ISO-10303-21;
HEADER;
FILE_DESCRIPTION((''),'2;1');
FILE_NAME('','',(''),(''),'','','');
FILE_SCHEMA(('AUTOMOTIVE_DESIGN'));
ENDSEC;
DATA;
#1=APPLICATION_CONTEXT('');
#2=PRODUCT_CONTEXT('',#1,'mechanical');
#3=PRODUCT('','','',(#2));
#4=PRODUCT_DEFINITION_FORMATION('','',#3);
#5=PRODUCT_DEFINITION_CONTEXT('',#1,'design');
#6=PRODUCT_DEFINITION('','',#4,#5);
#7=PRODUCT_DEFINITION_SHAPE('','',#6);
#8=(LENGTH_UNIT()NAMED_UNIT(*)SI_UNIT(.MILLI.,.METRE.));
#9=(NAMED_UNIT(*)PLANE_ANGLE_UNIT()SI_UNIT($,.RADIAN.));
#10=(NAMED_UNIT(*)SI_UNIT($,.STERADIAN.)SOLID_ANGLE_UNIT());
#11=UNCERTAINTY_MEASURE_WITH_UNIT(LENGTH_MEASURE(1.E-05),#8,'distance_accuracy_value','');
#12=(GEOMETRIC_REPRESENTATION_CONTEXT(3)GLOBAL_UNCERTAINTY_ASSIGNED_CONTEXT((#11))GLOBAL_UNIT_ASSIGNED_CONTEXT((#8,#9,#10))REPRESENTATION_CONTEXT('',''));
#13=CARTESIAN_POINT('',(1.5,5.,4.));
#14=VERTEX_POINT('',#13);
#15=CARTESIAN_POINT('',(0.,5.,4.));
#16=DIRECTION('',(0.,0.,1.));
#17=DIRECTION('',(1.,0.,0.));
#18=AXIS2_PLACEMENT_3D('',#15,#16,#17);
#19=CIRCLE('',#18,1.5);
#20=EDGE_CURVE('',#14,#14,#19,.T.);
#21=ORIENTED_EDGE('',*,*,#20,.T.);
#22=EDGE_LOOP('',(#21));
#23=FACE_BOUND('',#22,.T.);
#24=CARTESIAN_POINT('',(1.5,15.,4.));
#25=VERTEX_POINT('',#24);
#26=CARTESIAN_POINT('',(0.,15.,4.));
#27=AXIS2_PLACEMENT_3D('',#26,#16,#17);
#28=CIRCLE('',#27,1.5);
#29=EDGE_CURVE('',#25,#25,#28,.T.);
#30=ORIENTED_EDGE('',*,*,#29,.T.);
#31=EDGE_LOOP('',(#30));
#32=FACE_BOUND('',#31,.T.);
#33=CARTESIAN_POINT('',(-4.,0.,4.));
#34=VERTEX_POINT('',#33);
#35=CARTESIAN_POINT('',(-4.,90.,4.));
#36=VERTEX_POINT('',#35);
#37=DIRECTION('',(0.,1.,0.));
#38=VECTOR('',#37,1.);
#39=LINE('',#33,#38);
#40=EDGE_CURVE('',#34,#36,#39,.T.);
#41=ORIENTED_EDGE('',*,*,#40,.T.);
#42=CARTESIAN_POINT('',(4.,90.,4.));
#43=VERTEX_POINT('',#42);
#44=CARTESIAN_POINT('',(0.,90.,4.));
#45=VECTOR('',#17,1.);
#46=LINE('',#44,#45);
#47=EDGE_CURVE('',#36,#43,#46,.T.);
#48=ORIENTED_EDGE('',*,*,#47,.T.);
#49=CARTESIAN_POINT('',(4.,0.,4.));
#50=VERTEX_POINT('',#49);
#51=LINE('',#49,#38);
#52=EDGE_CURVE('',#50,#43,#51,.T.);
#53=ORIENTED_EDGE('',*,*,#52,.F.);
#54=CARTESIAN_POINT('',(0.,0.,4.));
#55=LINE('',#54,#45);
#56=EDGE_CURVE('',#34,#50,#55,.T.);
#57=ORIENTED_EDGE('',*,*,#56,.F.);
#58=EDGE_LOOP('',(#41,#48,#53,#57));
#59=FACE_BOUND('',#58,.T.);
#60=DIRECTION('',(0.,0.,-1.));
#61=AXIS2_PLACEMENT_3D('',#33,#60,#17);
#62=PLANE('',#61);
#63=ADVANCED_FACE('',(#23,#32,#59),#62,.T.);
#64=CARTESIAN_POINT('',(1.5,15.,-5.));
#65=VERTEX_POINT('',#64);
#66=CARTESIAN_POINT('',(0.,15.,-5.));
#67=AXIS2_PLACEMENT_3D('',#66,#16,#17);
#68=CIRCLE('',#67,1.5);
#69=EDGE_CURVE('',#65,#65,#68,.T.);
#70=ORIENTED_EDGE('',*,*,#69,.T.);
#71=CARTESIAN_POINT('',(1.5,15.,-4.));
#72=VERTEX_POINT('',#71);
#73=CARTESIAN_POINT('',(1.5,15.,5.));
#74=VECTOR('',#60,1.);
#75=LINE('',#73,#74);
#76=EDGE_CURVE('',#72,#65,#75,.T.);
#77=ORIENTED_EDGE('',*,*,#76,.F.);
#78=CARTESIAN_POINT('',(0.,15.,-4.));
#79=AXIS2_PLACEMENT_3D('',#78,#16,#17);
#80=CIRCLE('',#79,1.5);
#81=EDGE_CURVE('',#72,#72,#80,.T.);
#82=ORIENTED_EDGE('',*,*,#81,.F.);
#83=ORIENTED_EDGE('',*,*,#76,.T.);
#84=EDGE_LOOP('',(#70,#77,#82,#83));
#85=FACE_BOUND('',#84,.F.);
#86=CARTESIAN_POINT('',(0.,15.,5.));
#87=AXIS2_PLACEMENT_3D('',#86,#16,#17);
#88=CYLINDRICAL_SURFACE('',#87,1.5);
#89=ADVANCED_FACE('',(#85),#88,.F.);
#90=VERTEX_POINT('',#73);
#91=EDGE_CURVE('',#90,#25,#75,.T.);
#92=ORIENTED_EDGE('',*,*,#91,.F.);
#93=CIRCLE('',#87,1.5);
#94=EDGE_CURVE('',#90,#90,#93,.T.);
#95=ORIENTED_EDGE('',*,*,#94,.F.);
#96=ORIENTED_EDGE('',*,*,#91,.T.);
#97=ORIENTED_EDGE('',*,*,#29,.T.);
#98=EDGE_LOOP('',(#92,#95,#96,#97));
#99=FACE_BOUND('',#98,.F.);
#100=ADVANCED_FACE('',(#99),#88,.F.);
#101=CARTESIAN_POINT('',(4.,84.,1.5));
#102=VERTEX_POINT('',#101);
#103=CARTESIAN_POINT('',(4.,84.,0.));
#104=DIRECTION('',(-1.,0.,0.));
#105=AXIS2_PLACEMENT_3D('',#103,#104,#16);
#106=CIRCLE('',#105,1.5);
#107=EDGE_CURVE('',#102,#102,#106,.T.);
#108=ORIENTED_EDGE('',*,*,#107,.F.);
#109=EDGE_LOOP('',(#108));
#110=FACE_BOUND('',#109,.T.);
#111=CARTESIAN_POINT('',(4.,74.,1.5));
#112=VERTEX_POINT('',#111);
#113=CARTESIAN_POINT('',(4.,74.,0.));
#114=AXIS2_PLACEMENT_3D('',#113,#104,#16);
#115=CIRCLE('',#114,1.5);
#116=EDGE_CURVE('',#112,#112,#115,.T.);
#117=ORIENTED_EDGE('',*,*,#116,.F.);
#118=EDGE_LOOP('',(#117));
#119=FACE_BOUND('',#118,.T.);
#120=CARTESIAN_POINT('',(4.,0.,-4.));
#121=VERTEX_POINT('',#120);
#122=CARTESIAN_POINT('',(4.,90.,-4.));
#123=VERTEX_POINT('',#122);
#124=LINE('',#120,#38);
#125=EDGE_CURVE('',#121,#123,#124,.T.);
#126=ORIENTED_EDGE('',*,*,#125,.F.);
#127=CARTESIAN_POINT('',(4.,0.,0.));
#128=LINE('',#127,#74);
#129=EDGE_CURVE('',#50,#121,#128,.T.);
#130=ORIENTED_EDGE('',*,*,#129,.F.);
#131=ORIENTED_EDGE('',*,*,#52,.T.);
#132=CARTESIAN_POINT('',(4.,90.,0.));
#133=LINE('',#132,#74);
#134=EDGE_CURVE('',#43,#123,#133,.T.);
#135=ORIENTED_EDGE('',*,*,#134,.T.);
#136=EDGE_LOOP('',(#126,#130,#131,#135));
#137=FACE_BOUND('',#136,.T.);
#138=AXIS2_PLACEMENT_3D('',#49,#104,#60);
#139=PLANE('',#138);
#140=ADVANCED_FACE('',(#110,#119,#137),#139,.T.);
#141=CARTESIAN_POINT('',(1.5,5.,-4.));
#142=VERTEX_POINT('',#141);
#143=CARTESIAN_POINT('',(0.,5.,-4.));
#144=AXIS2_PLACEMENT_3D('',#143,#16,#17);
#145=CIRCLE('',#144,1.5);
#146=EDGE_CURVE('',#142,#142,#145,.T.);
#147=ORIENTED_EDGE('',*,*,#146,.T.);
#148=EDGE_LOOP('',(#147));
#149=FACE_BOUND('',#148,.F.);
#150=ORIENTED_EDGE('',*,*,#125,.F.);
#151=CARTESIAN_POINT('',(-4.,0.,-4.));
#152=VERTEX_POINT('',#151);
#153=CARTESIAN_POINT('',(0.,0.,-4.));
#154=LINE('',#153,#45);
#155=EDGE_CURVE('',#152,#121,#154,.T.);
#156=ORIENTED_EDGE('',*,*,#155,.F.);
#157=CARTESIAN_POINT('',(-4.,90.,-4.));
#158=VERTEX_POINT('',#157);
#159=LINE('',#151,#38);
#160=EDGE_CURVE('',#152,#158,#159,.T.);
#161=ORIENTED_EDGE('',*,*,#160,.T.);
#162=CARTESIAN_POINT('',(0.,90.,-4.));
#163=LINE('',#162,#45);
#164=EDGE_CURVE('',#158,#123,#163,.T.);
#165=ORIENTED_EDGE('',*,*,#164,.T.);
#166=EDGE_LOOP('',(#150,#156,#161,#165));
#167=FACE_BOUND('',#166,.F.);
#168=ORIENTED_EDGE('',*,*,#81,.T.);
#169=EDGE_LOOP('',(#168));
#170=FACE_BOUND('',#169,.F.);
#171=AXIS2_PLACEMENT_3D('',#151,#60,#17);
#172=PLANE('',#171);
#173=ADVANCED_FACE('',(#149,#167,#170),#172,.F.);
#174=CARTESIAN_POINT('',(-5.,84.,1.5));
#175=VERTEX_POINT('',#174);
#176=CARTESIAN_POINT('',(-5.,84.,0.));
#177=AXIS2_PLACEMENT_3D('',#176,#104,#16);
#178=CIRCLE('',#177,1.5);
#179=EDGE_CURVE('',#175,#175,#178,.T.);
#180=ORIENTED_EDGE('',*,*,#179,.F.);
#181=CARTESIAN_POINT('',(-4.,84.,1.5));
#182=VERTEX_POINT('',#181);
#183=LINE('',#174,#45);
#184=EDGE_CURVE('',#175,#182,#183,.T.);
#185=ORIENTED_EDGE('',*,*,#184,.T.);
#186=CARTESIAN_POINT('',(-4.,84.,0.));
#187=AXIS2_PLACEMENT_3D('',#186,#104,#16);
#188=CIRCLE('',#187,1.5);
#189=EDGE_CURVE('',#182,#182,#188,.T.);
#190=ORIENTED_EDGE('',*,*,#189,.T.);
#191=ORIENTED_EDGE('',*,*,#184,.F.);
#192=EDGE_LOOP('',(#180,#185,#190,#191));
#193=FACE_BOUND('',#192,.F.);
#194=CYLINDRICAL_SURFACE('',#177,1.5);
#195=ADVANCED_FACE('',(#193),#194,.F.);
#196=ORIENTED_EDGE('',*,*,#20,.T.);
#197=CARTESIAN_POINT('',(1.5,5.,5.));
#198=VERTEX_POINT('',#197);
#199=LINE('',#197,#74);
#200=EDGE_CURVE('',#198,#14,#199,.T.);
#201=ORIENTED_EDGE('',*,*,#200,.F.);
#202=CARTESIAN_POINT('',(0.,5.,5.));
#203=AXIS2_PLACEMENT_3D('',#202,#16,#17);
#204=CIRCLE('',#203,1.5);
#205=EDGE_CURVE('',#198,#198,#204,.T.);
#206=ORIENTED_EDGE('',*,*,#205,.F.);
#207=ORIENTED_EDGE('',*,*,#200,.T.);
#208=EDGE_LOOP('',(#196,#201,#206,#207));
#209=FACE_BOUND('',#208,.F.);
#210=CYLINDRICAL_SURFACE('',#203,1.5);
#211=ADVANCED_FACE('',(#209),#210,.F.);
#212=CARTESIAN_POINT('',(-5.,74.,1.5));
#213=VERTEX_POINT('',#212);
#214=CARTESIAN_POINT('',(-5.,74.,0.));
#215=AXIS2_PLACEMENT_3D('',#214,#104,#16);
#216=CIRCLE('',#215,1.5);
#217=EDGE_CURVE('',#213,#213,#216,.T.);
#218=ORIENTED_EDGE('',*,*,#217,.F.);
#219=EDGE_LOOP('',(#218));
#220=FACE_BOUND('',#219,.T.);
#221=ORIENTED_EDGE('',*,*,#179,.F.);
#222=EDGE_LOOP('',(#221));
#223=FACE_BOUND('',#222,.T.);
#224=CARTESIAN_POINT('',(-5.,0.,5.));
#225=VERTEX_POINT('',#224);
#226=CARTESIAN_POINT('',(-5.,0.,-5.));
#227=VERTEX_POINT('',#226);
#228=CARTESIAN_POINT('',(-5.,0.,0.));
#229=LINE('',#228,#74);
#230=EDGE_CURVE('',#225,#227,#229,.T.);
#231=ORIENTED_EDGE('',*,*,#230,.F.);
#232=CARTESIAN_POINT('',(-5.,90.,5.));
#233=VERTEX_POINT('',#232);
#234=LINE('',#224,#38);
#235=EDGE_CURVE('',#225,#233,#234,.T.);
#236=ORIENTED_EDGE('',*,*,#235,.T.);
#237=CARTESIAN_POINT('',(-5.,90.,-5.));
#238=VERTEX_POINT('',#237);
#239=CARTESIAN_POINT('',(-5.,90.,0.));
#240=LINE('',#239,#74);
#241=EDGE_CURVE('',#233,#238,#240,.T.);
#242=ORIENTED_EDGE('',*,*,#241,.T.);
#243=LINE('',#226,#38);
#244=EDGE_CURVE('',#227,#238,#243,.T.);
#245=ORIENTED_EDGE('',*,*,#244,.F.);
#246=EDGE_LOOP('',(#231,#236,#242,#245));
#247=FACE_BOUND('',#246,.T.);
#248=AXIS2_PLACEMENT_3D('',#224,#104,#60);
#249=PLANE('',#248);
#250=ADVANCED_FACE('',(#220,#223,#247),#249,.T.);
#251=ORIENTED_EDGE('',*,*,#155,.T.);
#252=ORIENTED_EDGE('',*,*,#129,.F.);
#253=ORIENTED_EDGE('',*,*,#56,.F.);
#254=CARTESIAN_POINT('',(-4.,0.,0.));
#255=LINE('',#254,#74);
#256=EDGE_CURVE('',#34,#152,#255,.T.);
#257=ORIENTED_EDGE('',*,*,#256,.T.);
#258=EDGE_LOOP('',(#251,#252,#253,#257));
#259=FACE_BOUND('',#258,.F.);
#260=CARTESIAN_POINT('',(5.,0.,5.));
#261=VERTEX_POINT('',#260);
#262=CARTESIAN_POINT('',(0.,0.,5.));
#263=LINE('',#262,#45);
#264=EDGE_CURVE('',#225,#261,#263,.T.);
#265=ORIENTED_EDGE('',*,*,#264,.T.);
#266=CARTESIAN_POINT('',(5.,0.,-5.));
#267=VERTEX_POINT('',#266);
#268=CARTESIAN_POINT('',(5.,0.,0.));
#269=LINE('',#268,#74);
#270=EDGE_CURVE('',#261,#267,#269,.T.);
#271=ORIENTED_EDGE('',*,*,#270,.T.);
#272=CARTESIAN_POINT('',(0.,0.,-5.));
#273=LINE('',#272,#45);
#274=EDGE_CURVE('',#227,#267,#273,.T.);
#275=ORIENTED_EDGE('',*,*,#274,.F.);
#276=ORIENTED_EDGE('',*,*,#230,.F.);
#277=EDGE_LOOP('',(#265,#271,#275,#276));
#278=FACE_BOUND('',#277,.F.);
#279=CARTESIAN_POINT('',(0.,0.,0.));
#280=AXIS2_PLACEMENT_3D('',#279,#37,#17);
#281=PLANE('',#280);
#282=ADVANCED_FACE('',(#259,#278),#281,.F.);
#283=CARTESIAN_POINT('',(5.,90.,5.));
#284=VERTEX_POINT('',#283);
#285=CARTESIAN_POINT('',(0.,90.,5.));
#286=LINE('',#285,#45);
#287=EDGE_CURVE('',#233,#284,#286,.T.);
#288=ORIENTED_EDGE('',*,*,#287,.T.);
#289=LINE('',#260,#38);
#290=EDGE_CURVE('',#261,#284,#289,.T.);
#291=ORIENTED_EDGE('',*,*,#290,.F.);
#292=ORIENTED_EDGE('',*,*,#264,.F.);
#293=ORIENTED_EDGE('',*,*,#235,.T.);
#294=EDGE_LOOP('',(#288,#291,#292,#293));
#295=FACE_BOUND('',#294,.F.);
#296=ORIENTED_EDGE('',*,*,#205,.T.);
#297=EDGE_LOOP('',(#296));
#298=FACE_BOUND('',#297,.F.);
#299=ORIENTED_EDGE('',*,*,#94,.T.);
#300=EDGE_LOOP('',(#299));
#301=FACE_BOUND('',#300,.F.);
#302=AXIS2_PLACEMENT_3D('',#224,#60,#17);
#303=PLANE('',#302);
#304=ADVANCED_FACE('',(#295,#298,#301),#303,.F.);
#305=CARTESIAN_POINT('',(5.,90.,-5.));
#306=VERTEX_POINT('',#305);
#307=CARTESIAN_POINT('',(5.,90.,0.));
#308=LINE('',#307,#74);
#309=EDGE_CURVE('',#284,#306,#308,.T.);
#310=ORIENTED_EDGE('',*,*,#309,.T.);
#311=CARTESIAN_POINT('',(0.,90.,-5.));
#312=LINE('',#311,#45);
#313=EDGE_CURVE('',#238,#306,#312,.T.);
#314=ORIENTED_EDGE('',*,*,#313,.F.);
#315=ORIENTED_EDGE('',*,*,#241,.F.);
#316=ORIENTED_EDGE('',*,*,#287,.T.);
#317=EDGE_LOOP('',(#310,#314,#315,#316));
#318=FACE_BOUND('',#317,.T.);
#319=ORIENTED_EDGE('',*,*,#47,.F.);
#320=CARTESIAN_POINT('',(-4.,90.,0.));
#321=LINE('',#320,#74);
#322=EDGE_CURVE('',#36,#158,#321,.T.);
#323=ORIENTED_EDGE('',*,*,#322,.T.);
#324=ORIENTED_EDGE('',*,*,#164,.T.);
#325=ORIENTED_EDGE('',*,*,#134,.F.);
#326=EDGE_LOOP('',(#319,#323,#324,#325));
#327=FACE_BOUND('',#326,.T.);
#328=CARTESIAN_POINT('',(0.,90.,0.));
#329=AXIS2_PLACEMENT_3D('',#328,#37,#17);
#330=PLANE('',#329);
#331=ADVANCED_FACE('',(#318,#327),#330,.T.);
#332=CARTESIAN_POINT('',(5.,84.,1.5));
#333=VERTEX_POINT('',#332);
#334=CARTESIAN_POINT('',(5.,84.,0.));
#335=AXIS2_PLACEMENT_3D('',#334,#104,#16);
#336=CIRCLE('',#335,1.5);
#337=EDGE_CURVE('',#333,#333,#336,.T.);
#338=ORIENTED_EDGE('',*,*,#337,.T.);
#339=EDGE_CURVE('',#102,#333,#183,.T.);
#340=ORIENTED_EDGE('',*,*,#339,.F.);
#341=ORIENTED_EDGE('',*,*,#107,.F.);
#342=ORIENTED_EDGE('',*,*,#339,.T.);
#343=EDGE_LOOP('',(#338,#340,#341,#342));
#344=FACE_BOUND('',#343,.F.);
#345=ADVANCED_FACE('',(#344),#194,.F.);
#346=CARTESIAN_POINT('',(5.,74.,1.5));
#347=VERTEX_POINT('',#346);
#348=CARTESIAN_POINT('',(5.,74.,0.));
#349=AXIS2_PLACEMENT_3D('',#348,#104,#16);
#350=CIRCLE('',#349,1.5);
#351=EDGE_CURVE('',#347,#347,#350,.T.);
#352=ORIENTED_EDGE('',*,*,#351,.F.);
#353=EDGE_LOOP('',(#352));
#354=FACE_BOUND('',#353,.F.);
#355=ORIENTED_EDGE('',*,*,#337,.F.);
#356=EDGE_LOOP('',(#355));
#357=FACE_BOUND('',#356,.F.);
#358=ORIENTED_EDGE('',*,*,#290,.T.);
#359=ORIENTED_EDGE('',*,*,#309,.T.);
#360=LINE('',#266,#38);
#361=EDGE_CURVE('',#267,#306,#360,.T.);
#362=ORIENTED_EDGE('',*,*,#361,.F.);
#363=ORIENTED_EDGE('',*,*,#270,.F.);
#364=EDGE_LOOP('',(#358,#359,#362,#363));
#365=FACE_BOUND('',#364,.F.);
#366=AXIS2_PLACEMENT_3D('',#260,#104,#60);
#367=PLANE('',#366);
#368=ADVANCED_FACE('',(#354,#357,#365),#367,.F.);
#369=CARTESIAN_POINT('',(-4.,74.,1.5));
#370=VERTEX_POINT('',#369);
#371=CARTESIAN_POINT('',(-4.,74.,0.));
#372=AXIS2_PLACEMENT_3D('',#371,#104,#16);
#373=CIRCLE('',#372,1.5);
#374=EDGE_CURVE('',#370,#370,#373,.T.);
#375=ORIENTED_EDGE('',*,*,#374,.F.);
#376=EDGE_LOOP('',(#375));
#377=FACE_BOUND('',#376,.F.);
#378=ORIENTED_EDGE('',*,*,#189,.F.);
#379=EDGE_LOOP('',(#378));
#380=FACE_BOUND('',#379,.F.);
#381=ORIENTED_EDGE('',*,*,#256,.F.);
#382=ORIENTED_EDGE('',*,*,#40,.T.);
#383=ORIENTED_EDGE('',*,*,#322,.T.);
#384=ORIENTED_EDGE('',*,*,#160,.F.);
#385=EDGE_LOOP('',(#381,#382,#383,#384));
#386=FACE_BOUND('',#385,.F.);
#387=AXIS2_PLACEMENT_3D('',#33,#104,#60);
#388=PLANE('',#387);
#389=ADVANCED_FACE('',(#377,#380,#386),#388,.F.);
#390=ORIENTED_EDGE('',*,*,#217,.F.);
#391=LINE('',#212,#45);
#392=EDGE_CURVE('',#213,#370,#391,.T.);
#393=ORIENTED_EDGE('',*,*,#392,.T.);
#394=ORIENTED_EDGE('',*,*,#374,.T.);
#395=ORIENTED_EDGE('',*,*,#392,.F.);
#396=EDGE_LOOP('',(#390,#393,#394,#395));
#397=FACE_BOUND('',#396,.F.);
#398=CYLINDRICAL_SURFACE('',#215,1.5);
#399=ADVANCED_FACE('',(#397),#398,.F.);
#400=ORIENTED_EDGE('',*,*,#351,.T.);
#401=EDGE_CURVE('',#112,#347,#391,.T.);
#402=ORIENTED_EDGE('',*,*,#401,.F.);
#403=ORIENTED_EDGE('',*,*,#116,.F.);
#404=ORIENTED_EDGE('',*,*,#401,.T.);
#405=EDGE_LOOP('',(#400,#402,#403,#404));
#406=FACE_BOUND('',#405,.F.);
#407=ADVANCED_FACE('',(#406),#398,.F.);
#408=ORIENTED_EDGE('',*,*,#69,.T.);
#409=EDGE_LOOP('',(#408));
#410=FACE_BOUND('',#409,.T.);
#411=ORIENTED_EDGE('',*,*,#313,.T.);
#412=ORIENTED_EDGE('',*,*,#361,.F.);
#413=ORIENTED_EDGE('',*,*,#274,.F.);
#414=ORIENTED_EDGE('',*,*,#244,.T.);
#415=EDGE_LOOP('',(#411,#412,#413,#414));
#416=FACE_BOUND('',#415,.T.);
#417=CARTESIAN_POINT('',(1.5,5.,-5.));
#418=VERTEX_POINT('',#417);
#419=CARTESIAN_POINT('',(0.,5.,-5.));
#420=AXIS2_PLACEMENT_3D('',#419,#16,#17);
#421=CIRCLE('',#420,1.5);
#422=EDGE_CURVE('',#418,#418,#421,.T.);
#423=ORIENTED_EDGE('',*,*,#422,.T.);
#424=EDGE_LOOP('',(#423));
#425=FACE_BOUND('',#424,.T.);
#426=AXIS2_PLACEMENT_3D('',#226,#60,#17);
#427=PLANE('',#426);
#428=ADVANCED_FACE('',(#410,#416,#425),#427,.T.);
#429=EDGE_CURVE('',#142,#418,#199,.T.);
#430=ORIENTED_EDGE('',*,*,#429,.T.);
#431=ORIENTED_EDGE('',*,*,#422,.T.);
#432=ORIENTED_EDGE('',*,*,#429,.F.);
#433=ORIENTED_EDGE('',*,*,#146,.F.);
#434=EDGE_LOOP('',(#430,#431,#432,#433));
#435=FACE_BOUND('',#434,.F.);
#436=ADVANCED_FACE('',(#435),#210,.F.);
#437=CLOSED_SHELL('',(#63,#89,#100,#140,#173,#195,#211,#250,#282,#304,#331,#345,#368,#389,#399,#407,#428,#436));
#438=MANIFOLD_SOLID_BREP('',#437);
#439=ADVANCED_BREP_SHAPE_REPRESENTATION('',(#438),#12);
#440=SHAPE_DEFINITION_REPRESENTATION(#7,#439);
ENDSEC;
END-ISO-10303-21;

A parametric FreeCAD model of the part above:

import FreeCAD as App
import Part
import Sketcher
from FreeCAD import Vector

doc = App.newDocument("Part")
body = doc.addObject("PartDesign::Body", "Body")

# Sketch on XZ plane
sketch1 = body.newObject("Sketcher::SketchObject", "Sketch")
sketch1.AttachmentSupport = (doc.getObject("XZ_Plane"), [""])
sketch1.MapMode = "FlatFace"
sketch1.addGeometry(Part.LineSegment(Vector(-5, -5, 0), Vector(-5, 5, 0)), False)
sketch1.addGeometry(Part.LineSegment(Vector(-5, 5, 0), Vector(5, 5, 0)), False)
sketch1.addGeometry(Part.LineSegment(Vector(5, 5, 0), Vector(5, -5, 0)), False)
sketch1.addGeometry(Part.LineSegment(Vector(5, -5, 0), Vector(-5, -5, 0)), False)
sketch1.addGeometry(Part.LineSegment(Vector(4, 4, 0), Vector(-4, 4, 0)), False)
sketch1.addGeometry(Part.LineSegment(Vector(-4, 4, 0), Vector(-4, -4, 0)), False)
sketch1.addGeometry(Part.LineSegment(Vector(-4, -4, 0), Vector(4, -4, 0)), False)
sketch1.addGeometry(Part.LineSegment(Vector(4, -4, 0), Vector(4, 4, 0)), False)
sketch1.addConstraint(Sketcher.Constraint("Coincident", 0, 2, 1, 1))
sketch1.addConstraint(Sketcher.Constraint("Coincident", 1, 2, 2, 1))
sketch1.addConstraint(Sketcher.Constraint("Coincident", 2, 2, 3, 1))
sketch1.addConstraint(Sketcher.Constraint("Coincident", 3, 2, 0, 1))
sketch1.addConstraint(Sketcher.Constraint("Coincident", 4, 2, 5, 1))
sketch1.addConstraint(Sketcher.Constraint("Coincident", 5, 2, 6, 1))
sketch1.addConstraint(Sketcher.Constraint("Coincident", 6, 2, 7, 1))
sketch1.addConstraint(Sketcher.Constraint("Coincident", 7, 2, 4, 1))
sketch1.addConstraint(Sketcher.Constraint("Vertical", 0))
sketch1.addConstraint(Sketcher.Constraint("Horizontal", 1))
sketch1.addConstraint(Sketcher.Constraint("Vertical", 2))
sketch1.addConstraint(Sketcher.Constraint("Horizontal", 3))
sketch1.addConstraint(Sketcher.Constraint("Horizontal", 4))
sketch1.addConstraint(Sketcher.Constraint("Vertical", 5))
sketch1.addConstraint(Sketcher.Constraint("Horizontal", 6))
sketch1.addConstraint(Sketcher.Constraint("Vertical", 7))
sketch1.addConstraint(Sketcher.Constraint("Symmetric", 0, 2, 2, 2, -1, 1))
sketch1.addConstraint(Sketcher.Constraint("Symmetric", 4, 2, 6, 2, -1, 1))
sketch1.addConstraint(Sketcher.Constraint("Equal", 3, 0))
sketch1.addConstraint(Sketcher.Constraint("Equal", 6, 5))
sketch1.addConstraint(Sketcher.Constraint("DistanceX", 1, 1, 1, 2, 10.0))
sketch1.addConstraint(Sketcher.Constraint("DistanceX", 4, 2, 4, 1, 8.0))
pad1 = body.newObject("PartDesign::Pad", "Pad")
pad1.Profile = sketch1
pad1.Length = 90
pad1.Reversed = True

# Sketch on YZ plane
sketch2 = body.newObject("Sketcher::SketchObject", "Sketch001")
sketch2.AttachmentSupport = (doc.getObject("YZ_Plane"), [""])
sketch2.MapMode = "FlatFace"
sketch2.AttachmentOffset = App.Placement(Vector(0, 0, -5), App.Rotation())
sketch2.addGeometry(Part.Circle(Vector(84, 0, 0), Vector(0, 0, 1), 1.5), False)
sketch2.addGeometry(Part.Circle(Vector(74, 0, 0), Vector(0, 0, 1), 1.5), False)
sketch2.addConstraint(Sketcher.Constraint("Equal", 0, 1))
sketch2.addConstraint(Sketcher.Constraint("PointOnObject", 0, 3, -1))
sketch2.addConstraint(Sketcher.Constraint("PointOnObject", 1, 3, -1))
sketch2.addConstraint(Sketcher.Constraint("Diameter", 0, 3.0))
sketch2.addConstraint(Sketcher.Constraint("DistanceX", -1, 1, 0, 3, 84.0))
sketch2.addConstraint(Sketcher.Constraint("DistanceX", -1, 1, 1, 3, 74.0))
pocket1 = body.newObject("PartDesign::Pocket", "Pocket")
pocket1.Profile = sketch2
pocket1.Length = 30
pocket1.Reversed = True

# Sketch on XY plane
sketch3 = body.newObject("Sketcher::SketchObject", "Sketch002")
sketch3.AttachmentSupport = (doc.getObject("XY_Plane"), [""])
sketch3.MapMode = "FlatFace"
sketch3.AttachmentOffset = App.Placement(Vector(0, 0, 5), App.Rotation())
sketch3.addGeometry(Part.Circle(Vector(0, 5, 0), Vector(0, 0, 1), 1.5), False)
sketch3.addGeometry(Part.Circle(Vector(0, 15, 0), Vector(0, 0, 1), 1.5), False)
sketch3.addConstraint(Sketcher.Constraint("Equal", 0, 1))
sketch3.addConstraint(Sketcher.Constraint("PointOnObject", 0, 3, -2))
sketch3.addConstraint(Sketcher.Constraint("PointOnObject", 1, 3, -2))
sketch3.addConstraint(Sketcher.Constraint("Diameter", 0, 3.0))
sketch3.addConstraint(Sketcher.Constraint("DistanceY", -1, 1, 0, 3, 5.0))
sketch3.addConstraint(Sketcher.Constraint("DistanceY", -1, 1, 1, 3, 15.0))
pocket2 = body.newObject("PartDesign::Pocket", "Pocket001")
pocket2.Profile = sketch3
pocket2.Length = 30

doc.recompute()
